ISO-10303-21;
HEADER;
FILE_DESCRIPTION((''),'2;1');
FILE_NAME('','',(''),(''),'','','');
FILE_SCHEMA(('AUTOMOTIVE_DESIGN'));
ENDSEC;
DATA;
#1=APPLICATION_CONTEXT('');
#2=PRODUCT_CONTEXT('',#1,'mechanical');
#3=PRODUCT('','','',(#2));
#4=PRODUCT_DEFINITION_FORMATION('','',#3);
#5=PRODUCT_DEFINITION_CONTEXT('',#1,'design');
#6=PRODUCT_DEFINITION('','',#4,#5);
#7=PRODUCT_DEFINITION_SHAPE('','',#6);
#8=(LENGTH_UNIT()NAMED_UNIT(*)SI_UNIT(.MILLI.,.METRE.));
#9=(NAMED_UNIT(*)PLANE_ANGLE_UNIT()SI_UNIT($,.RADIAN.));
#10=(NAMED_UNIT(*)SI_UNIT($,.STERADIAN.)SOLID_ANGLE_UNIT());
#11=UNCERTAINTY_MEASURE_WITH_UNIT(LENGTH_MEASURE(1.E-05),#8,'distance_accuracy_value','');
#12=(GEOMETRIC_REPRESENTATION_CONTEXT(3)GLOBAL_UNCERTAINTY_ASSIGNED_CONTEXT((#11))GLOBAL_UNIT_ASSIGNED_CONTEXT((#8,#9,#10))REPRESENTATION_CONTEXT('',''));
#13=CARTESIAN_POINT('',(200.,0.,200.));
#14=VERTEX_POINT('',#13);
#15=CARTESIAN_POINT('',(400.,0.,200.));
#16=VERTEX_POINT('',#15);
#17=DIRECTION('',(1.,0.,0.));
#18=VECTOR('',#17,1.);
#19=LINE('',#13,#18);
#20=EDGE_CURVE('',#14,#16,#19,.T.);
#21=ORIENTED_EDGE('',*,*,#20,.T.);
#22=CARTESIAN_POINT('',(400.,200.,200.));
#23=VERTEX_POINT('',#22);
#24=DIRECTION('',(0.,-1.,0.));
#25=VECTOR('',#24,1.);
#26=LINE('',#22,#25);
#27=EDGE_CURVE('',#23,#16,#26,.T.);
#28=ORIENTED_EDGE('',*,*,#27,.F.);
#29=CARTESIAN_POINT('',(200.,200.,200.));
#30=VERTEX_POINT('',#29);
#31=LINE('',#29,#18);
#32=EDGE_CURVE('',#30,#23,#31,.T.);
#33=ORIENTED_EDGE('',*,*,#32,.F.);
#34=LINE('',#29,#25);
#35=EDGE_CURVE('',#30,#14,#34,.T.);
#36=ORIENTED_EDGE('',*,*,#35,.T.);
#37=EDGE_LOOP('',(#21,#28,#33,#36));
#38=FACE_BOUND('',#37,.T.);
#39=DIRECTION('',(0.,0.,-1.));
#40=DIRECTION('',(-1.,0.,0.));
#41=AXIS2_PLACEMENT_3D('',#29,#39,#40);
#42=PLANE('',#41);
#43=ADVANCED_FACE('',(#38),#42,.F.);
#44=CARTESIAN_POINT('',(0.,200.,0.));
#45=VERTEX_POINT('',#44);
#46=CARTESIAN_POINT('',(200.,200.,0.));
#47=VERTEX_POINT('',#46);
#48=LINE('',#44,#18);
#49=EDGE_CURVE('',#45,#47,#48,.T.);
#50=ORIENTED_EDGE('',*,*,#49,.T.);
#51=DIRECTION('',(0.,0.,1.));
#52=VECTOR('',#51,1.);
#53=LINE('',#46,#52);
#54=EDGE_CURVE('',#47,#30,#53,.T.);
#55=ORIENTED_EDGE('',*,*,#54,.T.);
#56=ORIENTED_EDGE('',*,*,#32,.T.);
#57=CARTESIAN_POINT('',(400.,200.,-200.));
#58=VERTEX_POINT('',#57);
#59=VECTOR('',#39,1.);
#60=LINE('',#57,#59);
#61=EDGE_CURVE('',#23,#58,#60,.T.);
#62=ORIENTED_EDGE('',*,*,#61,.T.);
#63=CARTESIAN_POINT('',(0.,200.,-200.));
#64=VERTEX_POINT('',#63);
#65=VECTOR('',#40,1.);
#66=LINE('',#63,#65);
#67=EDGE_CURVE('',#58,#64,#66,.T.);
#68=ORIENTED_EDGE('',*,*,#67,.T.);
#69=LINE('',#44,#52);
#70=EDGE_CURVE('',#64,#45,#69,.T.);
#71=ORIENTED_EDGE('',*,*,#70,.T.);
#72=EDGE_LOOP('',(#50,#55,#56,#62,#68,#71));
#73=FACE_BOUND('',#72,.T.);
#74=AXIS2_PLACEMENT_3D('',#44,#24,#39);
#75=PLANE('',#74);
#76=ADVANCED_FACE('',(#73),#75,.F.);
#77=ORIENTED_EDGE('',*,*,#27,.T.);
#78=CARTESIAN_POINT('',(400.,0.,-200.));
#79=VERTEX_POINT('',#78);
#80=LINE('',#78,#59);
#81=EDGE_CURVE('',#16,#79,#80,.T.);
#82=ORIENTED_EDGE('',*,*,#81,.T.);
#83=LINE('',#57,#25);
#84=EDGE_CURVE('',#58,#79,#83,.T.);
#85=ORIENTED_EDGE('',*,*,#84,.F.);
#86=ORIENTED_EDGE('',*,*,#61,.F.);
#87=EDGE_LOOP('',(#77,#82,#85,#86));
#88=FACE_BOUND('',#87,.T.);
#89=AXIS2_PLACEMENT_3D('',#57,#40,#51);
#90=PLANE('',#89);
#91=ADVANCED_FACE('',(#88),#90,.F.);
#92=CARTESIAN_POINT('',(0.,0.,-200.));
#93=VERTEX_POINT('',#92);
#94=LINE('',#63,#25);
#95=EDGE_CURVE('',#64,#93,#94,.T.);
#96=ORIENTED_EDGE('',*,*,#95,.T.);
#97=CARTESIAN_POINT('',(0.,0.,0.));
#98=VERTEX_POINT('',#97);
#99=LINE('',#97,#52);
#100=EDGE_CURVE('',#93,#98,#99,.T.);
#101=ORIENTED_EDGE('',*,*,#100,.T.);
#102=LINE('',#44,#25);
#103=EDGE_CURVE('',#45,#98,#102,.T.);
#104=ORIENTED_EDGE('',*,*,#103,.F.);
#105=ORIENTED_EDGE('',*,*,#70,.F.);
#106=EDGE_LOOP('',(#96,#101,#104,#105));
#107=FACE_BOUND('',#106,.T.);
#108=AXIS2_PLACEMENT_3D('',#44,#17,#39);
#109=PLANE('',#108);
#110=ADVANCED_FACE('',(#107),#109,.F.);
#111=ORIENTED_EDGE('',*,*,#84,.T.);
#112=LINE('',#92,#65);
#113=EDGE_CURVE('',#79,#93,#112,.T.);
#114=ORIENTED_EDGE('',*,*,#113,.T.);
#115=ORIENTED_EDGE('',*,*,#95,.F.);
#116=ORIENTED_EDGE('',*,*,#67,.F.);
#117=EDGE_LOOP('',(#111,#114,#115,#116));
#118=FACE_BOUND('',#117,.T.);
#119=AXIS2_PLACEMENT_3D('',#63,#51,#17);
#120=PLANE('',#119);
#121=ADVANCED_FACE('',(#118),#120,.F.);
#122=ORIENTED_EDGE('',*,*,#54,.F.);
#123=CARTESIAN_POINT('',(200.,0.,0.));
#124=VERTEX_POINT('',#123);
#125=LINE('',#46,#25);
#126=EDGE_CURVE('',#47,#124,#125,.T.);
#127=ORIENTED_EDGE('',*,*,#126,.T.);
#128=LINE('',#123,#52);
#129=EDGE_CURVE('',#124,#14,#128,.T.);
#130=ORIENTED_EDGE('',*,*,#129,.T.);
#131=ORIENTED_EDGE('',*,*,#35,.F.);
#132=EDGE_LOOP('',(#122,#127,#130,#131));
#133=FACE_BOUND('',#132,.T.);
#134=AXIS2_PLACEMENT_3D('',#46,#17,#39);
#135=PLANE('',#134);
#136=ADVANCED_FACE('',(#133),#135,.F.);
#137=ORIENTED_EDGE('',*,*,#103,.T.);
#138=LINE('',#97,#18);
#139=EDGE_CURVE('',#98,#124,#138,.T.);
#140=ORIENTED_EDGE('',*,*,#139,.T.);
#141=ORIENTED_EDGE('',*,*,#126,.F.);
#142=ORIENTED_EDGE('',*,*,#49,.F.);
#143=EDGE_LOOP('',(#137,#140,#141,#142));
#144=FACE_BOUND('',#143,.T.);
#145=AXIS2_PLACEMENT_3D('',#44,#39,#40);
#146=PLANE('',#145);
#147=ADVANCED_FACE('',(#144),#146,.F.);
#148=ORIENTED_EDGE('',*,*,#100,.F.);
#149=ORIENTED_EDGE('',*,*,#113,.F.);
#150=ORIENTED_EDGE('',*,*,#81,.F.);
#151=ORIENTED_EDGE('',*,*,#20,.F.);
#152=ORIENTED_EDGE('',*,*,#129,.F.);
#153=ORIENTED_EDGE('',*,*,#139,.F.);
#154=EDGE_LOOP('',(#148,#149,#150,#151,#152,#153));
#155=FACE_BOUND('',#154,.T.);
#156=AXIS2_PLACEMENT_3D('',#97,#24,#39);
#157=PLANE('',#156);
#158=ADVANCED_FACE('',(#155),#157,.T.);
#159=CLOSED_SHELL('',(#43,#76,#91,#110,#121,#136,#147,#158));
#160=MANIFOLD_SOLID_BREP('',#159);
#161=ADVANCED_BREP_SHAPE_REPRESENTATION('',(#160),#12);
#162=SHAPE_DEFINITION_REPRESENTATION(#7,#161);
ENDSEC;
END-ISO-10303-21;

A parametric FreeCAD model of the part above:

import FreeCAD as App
import Part
import Sketcher
Q = App.Units.Quantity

doc = App.newDocument("Part")
body = doc.addObject("PartDesign::Body", "Body")

sketch1 = body.newObject("Sketcher::SketchObject", "Sketch")
sketch1.AttachmentSupport = (doc.getObject("XZ_Plane"), [""])
sketch1.MapMode = "FlatFace"
sketch1.addGeometry([
    Part.LineSegment(App.Vector(400, 200, 0), App.Vector(400, -200, 0)),
    Part.LineSegment(App.Vector(400, -200, 0), App.Vector(0, -200, 0)),
    Part.LineSegment(App.Vector(0, -200, 0), App.Vector(0, 0, 0)),
    Part.LineSegment(App.Vector(0, 0, 0), App.Vector(200, 0, 0)),
    Part.LineSegment(App.Vector(200, 0, 0), App.Vector(200, 200, 0)),
    Part.LineSegment(App.Vector(200, 200, 0), App.Vector(400, 200, 0)),
], False)
sketch1.addConstraint([
    Sketcher.Constraint("Coincident", 0, 2, 1, 1),
    Sketcher.Constraint("Coincident", 1, 2, 2, 1),
    Sketcher.Constraint("Coincident", 2, 2, 3, 1),
    Sketcher.Constraint("Coincident", 3, 2, 4, 1),
    Sketcher.Constraint("Coincident", 4, 2, 5, 1),
    Sketcher.Constraint("Coincident", 5, 2, 0, 1),
    Sketcher.Constraint("Vertical", 0),
    Sketcher.Constraint("Horizontal", 1),
    Sketcher.Constraint("Vertical", 2),
    Sketcher.Constraint("Horizontal", 3),
    Sketcher.Constraint("Vertical", 4),
    Sketcher.Constraint("Horizontal", 5),
    Sketcher.Constraint("Coincident", 2, 2, -1, 1),
    Sketcher.Constraint("Equal", 3, 5),
    Sketcher.Constraint("Equal", 1, 0),
    Sketcher.Constraint("Equal", 5, 2),
    Sketcher.Constraint("DistanceX", 1, 2, 1, 1, Q("400 mm")),
])
pad1 = body.newObject("PartDesign::Pad", "Pad")
pad1.Profile = sketch1
pad1.Length = 200
pad1.Reversed = True

doc.recompute()
